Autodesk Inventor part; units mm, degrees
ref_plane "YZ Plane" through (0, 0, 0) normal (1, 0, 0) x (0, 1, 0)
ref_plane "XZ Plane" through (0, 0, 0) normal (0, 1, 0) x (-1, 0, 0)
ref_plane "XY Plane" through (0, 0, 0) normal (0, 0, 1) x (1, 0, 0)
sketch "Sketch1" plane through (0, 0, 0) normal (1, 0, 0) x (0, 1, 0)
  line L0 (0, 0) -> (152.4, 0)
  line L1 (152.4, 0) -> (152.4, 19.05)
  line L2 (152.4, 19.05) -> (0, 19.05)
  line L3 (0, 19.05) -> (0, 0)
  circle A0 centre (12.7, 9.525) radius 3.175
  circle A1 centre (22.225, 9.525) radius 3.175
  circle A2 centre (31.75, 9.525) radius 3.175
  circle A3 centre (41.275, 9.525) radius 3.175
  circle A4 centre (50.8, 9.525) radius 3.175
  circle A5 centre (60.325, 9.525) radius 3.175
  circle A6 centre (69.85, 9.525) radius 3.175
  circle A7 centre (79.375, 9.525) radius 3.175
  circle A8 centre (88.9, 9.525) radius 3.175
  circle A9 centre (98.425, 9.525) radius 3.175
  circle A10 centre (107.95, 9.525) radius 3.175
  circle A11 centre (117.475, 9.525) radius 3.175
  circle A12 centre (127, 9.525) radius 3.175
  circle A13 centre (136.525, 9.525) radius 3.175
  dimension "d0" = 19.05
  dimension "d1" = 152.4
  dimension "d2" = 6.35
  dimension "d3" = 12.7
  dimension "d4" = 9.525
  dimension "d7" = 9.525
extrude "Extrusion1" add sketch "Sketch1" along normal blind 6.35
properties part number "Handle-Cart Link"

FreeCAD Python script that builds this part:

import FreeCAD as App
import Part
import Sketcher

V = App.Vector
Q = App.Units.Quantity


def add_polygon(sketch, points):
    """Adds a closed chain of lines whose ends are joined by coincident constraints."""
    first, n = sketch.GeometryCount, len(points)
    for a, b in zip(points, points[1:] + points[:1]):
        sketch.addGeometry(Part.LineSegment(App.Vector(*a, 0), App.Vector(*b, 0)), False)
    for i in range(n):
        sketch.addConstraint(Sketcher.Constraint("Coincident", first + i, 2, first + (i + 1) % n, 1))

doc = App.newDocument("Part")
body = doc.addObject("PartDesign::Body", "Body")

sketch1 = doc.addObject("Sketcher::SketchObject", "Sketch")
body.addObject(sketch1)
sketch1.AttachmentSupport = (doc.YZ_Plane, [""])
sketch1.MapMode = "FlatFace"
add_polygon(sketch1, [(0, 19.05), (0, 0), (152.4, 0), (152.4, 19.05)])
sketch1.addGeometry(Part.Circle(V(12.7, 9.525, 0), V(0, 0, 1), 3.175), False)
sketch1.addGeometry(Part.Circle(V(22.225, 9.525, 0), V(0, 0, 1), 3.175), False)
sketch1.addGeometry(Part.Circle(V(31.75, 9.525, 0), V(0, 0, 1), 3.175), False)
sketch1.addGeometry(Part.Circle(V(41.275, 9.525, 0), V(0, 0, 1), 3.175), False)
sketch1.addGeometry(Part.Circle(V(50.8, 9.525, 0), V(0, 0, 1), 3.175), False)
sketch1.addGeometry(Part.Circle(V(60.325, 9.525, 0), V(0, 0, 1), 3.175), False)
sketch1.addGeometry(Part.Circle(V(69.85, 9.525, 0), V(0, 0, 1), 3.175), False)
sketch1.addGeometry(Part.Circle(V(79.375, 9.525, 0), V(0, 0, 1), 3.175), False)
sketch1.addGeometry(Part.Circle(V(88.9, 9.525, 0), V(0, 0, 1), 3.175), False)
sketch1.addGeometry(Part.Circle(V(98.425, 9.525, 0), V(0, 0, 1), 3.175), False)
sketch1.addGeometry(Part.Circle(V(107.95, 9.525, 0), V(0, 0, 1), 3.175), False)
sketch1.addGeometry(Part.Circle(V(117.475, 9.525, 0), V(0, 0, 1), 3.175), False)
sketch1.addGeometry(Part.Circle(V(127, 9.525, 0), V(0, 0, 1), 3.175), False)
sketch1.addGeometry(Part.Circle(V(136.525, 9.525, 0), V(0, 0, 1), 3.175), False)
sketch1.addConstraint([
    Sketcher.Constraint("Vertical", 0),
    Sketcher.Constraint("Horizontal", 1),
    Sketcher.Constraint("Vertical", 2),
    Sketcher.Constraint("Horizontal", 3),
    Sketcher.Constraint("Coincident", 0, 2, -1, 1),
    Sketcher.Constraint("Equal", 4, 5),
    Sketcher.Constraint("Equal", 5, 6),
    Sketcher.Constraint("Equal", 6, 7),
    Sketcher.Constraint("Equal", 7, 8),
    Sketcher.Constraint("Equal", 8, 9),
    Sketcher.Constraint("Equal", 9, 10),
    Sketcher.Constraint("Equal", 10, 11),
    Sketcher.Constraint("Equal", 11, 12),
    Sketcher.Constraint("Equal", 12, 13),
    Sketcher.Constraint("Equal", 13, 14),
    Sketcher.Constraint("Equal", 14, 15),
    Sketcher.Constraint("Equal", 15, 16),
    Sketcher.Constraint("Equal", 16, 17),
    Sketcher.Constraint("Horizontal", 4, 3, 5, 3),
    Sketcher.Constraint("Horizontal", 5, 3, 6, 3),
    Sketcher.Constraint("Horizontal", 6, 3, 7, 3),
    Sketcher.Constraint("Horizontal", 7, 3, 8, 3),
    Sketcher.Constraint("Horizontal", 8, 3, 9, 3),
    Sketcher.Constraint("Horizontal", 9, 3, 10, 3),
    Sketcher.Constraint("Horizontal", 10, 3, 11, 3),
    Sketcher.Constraint("Horizontal", 11, 3, 12, 3),
    Sketcher.Constraint("Horizontal", 12, 3, 13, 3),
    Sketcher.Constraint("Horizontal", 13, 3, 14, 3),
    Sketcher.Constraint("Horizontal", 14, 3, 15, 3),
    Sketcher.Constraint("Horizontal", 15, 3, 16, 3),
    Sketcher.Constraint("Horizontal", 16, 3, 17, 3),
    Sketcher.Constraint("Diameter", 4, Q("0.25 in")),
    Sketcher.Constraint("DistanceX", 1, 1, 1, 2, Q("6 in")),
    Sketcher.Constraint("DistanceY", 0, 2, 0, 1, Q("0.75 in")),
    Sketcher.Constraint("DistanceX", -1, 1, 4, 3, Q("0.5 in")),
    Sketcher.Constraint("DistanceX", 4, 3, 6, 3, Q("0.75 in")),
    Sketcher.Constraint("DistanceX", 5, 3, 7, 3, Q("0.75 in")),
    Sketcher.Constraint("DistanceX", 6, 3, 8, 3, Q("0.75 in")),
    Sketcher.Constraint("DistanceX", 7, 3, 9, 3, Q("0.75 in")),
    Sketcher.Constraint("DistanceX", 8, 3, 10, 3, Q("0.75 in")),
    Sketcher.Constraint("DistanceX", 9, 3, 11, 3, Q("0.75 in")),
    Sketcher.Constraint("DistanceX", 10, 3, 12, 3, Q("0.75 in")),
    Sketcher.Constraint("DistanceX", 11, 3, 13, 3, Q("0.75 in")),
    Sketcher.Constraint("DistanceX", 12, 3, 14, 3, Q("0.75 in")),
    Sketcher.Constraint("DistanceX", 13, 3, 15, 3, Q("0.75 in")),
    Sketcher.Constraint("DistanceX", 14, 3, 16, 3, Q("0.75 in")),
    Sketcher.Constraint("DistanceX", 15, 3, 17, 3, Q("0.75 in")),
    Sketcher.Constraint("DistanceY", -1, 1, 4, 3, Q("0.375 in")),
    Sketcher.Constraint("DistanceX", 4, 3, 5, 3, Q("0.375 in")),
])
pad1 = doc.addObject("PartDesign::Pad", "Pad")
body.addObject(pad1)
pad1.Profile = sketch1
pad1.Length = Q("0.25 in")

doc.recompute()
